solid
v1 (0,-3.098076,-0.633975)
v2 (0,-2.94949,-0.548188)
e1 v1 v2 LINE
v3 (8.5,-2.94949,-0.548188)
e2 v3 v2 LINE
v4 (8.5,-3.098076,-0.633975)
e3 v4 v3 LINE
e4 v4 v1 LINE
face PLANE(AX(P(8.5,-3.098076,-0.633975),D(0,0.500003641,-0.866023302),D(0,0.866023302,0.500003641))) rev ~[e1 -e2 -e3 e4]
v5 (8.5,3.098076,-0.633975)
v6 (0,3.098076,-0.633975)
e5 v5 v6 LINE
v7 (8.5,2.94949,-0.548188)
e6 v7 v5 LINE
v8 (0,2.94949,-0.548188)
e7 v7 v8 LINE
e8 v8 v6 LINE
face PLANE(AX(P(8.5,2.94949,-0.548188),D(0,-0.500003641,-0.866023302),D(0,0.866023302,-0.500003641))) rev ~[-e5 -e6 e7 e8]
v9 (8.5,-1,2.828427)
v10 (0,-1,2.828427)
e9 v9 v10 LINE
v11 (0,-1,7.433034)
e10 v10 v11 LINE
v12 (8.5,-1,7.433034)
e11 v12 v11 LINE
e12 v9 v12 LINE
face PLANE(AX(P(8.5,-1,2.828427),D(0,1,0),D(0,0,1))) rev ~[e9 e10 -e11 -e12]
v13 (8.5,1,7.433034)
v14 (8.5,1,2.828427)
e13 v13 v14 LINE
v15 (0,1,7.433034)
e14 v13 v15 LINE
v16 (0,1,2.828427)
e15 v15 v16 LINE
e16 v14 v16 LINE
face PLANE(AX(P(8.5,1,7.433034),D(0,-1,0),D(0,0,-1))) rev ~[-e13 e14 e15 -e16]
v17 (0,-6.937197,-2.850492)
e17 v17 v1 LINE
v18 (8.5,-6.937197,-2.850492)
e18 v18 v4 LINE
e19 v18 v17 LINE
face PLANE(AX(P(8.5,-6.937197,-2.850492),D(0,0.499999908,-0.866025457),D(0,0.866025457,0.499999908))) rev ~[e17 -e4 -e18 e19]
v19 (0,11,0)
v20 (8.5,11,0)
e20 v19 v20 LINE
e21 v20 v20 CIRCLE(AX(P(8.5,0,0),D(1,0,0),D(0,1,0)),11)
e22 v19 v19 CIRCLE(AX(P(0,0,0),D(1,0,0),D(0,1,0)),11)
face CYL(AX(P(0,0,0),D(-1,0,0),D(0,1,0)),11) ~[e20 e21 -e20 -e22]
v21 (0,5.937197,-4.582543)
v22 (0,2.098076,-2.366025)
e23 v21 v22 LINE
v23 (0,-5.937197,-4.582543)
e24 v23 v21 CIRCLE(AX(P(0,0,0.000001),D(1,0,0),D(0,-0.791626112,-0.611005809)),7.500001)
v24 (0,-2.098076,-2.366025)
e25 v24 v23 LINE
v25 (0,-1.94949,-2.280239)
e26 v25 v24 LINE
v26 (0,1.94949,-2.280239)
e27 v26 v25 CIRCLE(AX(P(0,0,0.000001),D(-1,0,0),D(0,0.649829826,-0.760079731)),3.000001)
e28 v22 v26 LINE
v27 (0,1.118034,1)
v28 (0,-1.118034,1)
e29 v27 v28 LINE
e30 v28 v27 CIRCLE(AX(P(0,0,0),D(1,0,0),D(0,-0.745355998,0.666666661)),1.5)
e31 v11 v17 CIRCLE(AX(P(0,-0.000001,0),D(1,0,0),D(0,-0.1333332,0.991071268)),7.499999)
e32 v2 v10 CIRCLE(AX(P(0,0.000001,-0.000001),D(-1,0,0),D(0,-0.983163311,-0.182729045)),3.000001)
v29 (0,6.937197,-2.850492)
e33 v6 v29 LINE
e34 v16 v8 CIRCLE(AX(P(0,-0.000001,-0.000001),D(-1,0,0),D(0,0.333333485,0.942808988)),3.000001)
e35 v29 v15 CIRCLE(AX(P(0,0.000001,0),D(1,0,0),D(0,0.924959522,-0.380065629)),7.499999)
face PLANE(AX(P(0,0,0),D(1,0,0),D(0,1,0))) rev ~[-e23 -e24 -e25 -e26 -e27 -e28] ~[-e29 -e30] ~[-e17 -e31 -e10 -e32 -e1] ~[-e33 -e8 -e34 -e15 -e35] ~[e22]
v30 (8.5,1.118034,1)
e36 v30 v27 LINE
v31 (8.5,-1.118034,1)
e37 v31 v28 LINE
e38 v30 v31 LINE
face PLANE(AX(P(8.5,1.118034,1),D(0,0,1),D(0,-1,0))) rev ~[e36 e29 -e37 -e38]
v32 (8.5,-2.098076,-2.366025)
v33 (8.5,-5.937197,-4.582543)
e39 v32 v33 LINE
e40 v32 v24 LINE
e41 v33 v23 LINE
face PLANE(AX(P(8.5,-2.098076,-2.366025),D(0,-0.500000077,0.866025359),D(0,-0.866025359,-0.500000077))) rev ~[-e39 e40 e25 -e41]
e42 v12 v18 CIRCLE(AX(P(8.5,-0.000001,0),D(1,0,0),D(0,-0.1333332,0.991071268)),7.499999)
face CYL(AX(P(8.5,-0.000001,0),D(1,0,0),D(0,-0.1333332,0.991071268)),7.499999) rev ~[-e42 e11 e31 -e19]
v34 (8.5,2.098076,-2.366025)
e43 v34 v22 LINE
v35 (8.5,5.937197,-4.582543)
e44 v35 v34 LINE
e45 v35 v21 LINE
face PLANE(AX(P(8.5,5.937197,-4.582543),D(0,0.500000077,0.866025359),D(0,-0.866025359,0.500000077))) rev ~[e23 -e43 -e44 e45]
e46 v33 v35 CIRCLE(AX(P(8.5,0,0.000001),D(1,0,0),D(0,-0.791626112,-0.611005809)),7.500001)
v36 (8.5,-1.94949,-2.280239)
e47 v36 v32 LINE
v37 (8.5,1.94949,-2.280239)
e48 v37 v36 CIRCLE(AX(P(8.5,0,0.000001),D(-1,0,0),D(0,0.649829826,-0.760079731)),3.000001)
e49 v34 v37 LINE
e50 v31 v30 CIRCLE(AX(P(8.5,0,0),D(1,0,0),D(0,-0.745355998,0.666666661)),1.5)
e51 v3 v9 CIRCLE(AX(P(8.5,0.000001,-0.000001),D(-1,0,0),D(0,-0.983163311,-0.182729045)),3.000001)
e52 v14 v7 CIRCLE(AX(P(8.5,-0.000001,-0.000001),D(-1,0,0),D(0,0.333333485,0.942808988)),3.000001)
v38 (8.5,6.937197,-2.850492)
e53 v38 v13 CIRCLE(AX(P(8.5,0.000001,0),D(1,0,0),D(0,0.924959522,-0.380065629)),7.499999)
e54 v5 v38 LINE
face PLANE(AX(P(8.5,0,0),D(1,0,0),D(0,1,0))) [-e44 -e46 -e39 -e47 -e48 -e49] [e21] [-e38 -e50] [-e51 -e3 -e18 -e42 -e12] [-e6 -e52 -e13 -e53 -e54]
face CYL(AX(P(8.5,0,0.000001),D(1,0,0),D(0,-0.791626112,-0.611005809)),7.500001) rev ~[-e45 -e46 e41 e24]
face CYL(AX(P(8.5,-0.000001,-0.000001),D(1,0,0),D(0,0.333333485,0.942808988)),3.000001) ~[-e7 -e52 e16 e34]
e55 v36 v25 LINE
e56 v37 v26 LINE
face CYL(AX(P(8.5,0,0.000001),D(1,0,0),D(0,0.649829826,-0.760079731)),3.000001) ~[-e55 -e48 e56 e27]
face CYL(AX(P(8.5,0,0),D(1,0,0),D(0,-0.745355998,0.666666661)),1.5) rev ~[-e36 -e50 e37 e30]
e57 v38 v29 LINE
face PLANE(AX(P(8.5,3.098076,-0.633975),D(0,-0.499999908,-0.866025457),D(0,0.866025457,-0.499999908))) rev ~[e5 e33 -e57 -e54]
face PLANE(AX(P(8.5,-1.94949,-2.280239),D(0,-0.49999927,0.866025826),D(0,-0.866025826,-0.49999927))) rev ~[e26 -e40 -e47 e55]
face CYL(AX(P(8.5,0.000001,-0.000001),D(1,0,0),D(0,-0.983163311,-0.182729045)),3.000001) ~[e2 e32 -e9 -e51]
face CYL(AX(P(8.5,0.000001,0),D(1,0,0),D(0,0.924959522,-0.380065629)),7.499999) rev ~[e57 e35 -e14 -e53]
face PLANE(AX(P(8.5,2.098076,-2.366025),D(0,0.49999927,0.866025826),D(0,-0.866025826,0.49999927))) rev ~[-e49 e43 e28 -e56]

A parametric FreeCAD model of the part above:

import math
import FreeCAD as App
import Part
import Sketcher
Q = App.Units.Quantity

doc = App.newDocument("Part")
body = doc.addObject("PartDesign::Body", "Body")

sketch1 = doc.addObject("Sketcher::SketchObject", "Sketch")
body.addObject(sketch1)
sketch1.AttachmentSupport = (doc.YZ_Plane, [""])
sketch1.MapMode = "FlatFace"
sketch1.addGeometry(Part.Circle(App.Vector(0, 0, 0), App.Vector(0, 0, 1), 11), False)
sketch1.addConstraint(Sketcher.Constraint("Coincident", 0, 3, -1, 1))
sketch1.addConstraint(Sketcher.Constraint("Diameter", 0, 22.0))
pad1 = doc.addObject("PartDesign::Pad", "Pad")
body.addObject(pad1)
pad1.Profile = sketch1
pad1.Length = 8.5

sketch2 = doc.addObject("Sketcher::SketchObject", "Sketch001")
body.addObject(sketch2)
sketch2.AttachmentSupport = (doc.YZ_Plane, [""])
sketch2.MapMode = "FlatFace"
sketch2.AttachmentOffset = App.Placement(App.Vector(0, 0, 8.5), App.Rotation())
sketch2.addGeometry(Part.ArcOfCircle(Part.Circle(App.Vector(0, 0, 0), App.Vector(0, 0, 1), 7.5), math.radians(98), math.radians(202)), False)
sketch2.addGeometry(Part.LineSegment(App.Vector(-6.94, -2.85, 0), App.Vector(-3.1, -0.63, 0)), False)
sketch2.addGeometry(Part.LineSegment(App.Vector(-3.1, -0.63, 0), App.Vector(-2.95, -0.55, 0)), False)
sketch2.addGeometry(Part.ArcOfCircle(Part.Circle(App.Vector(0, 0, 0), App.Vector(0, 0, 1), 3), math.radians(109), math.radians(191)), False)
sketch2.addGeometry(Part.LineSegment(App.Vector(-1, 2.83, 0), App.Vector(-1, 7.43, 0)), False)
sketch2.addGeometry(Part.ArcOfCircle(Part.Circle(App.Vector(0, 0, 0), App.Vector(0, 0, 1), 3), math.radians(-11), math.radians(71)), False)
sketch2.addGeometry(Part.LineSegment(App.Vector(2.95, -0.55, 0), App.Vector(3.1, -0.63, 0)), False)
sketch2.addGeometry(Part.LineSegment(App.Vector(3.1, -0.63, 0), App.Vector(6.94, -2.85, 0)), False)
sketch2.addGeometry(Part.ArcOfCircle(Part.Circle(App.Vector(0, 0, 0), App.Vector(0, 0, 1), 7.5), math.radians(-22), math.radians(82)), False)
sketch2.addGeometry(Part.LineSegment(App.Vector(1, 7.43, 0), App.Vector(1, 2.83, 0)), False)
sketch2.addGeometry(Part.LineSegment(App.Vector(-1.95, -2.28, 0), App.Vector(-2.1, -2.37, 0)), False)
sketch2.addGeometry(Part.LineSegment(App.Vector(-2.1, -2.37, 0), App.Vector(-5.94, -4.58, 0)), False)
sketch2.addGeometry(Part.ArcOfCircle(Part.Circle(App.Vector(0, 0, 0), App.Vector(0, 0, 1), 7.5), math.radians(-142), math.radians(-38)), False)
sketch2.addGeometry(Part.LineSegment(App.Vector(5.94, -4.58, 0), App.Vector(2.1, -2.37, 0)), False)
sketch2.addGeometry(Part.LineSegment(App.Vector(2.1, -2.37, 0), App.Vector(1.95, -2.28, 0)), False)
sketch2.addGeometry(Part.ArcOfCircle(Part.Circle(App.Vector(0, 0, 0), App.Vector(0, 0, 1), 3), math.radians(-131), math.radians(-49)), False)
sketch2.addConstraint(Sketcher.Constraint("Coincident", 0, 2, 1, 1))
sketch2.addConstraint(Sketcher.Constraint("Coincident", 1, 2, 2, 1))
sketch2.addConstraint(Sketcher.Constraint("Coincident", 2, 2, 3, 2))
sketch2.addConstraint(Sketcher.Constraint("Coincident", 3, 1, 4, 1))
sketch2.addConstraint(Sketcher.Constraint("Coincident", 4, 2, 0, 1))
sketch2.addConstraint(Sketcher.Constraint("Coincident", 5, 1, 6, 1))
sketch2.addConstraint(Sketcher.Constraint("Coincident", 6, 2, 7, 1))
sketch2.addConstraint(Sketcher.Constraint("Coincident", 7, 2, 8, 1))
sketch2.addConstraint(Sketcher.Constraint("Coincident", 8, 2, 9, 1))
sketch2.addConstraint(Sketcher.Constraint("Coincident", 9, 2, 5, 2))
sketch2.addConstraint(Sketcher.Constraint("Coincident", 10, 2, 11, 1))
sketch2.addConstraint(Sketcher.Constraint("Coincident", 11, 2, 12, 1))
sketch2.addConstraint(Sketcher.Constraint("Coincident", 12, 2, 13, 1))
sketch2.addConstraint(Sketcher.Constraint("Coincident", 13, 2, 14, 1))
sketch2.addConstraint(Sketcher.Constraint("Coincident", 14, 2, 15, 2))
sketch2.addConstraint(Sketcher.Constraint("Coincident", 15, 1, 10, 1))
sketch2.addConstraint(Sketcher.Constraint("Vertical", 4))
sketch2.addConstraint(Sketcher.Constraint("Vertical", 9))
sketch2.addConstraint(Sketcher.Constraint("Coincident", 0, 3, -1, 1))
sketch2.addConstraint(Sketcher.Constraint("Coincident", 3, 3, -1, 1))
sketch2.addConstraint(Sketcher.Constraint("Coincident", 5, 3, -1, 1))
sketch2.addConstraint(Sketcher.Constraint("Coincident", 8, 3, -1, 1))
sketch2.addConstraint(Sketcher.Constraint("Coincident", 12, 3, -1, 1))
sketch2.addConstraint(Sketcher.Constraint("Coincident", 15, 3, -1, 1))
sketch2.addConstraint(Sketcher.Constraint("Equal", 3, 5))
sketch2.addConstraint(Sketcher.Constraint("Equal", 0, 8))
sketch2.addConstraint(Sketcher.Constraint("Equal", 8, 12))
sketch2.addConstraint(Sketcher.Constraint("Equal", 5, 15))
sketch2.addConstraint(Sketcher.Constraint("Symmetric", 1, 2, 6, 2, -2))
sketch2.addConstraint(Sketcher.Constraint("Symmetric", 10, 2, 13, 2, -2))
sketch2.addConstraint(Sketcher.Constraint("Parallel", 1, 10))
sketch2.addConstraint(Sketcher.Constraint("Parallel", 10, 11))
sketch2.addConstraint(Sketcher.Constraint("Parallel", 7, 13))
sketch2.addConstraint(Sketcher.Constraint("Parallel", 13, 14))
sketch2.addConstraint(Sketcher.Constraint("Horizontal", 2, 2, 5, 1))
sketch2.addConstraint(Sketcher.Constraint("Horizontal", 0, 2, 7, 2))
sketch2.addConstraint(Sketcher.Constraint("Horizontal", 4, 2, 8, 2))
sketch2.addConstraint(Sketcher.Constraint("Equal", 6, 10))
sketch2.addConstraint(Sketcher.Constraint("Equal", 7, 11))
sketch2.addConstraint(Sketcher.Constraint("Radius", 3, 3.000001))
sketch2.addConstraint(Sketcher.Constraint("Radius", 0, 7.499999))
sketch2.addConstraint(Sketcher.Constraint("Angle", 1, Q("29.999994 deg")))
sketch2.addConstraint(Sketcher.Constraint("DistanceX", 3, 1, -1, 1, 1.0))
sketch2.addConstraint(Sketcher.Constraint("DistanceX", 1, 2, 10, 2, 1.0))
sketch2.addConstraint(Sketcher.Constraint("DistanceX", 14, 2, 5, 1, 1.0))
sketch2.addConstraint(Sketcher.Constraint("DistanceX", 6, 2, 7, 2, 3.839121))
pocket1 = doc.addObject("PartDesign::Pocket", "Pocket")
body.addObject(pocket1)
pocket1.Profile = sketch2
pocket1.Type = "ThroughAll"

sketch3 = doc.addObject("Sketcher::SketchObject", "Sketch002")
body.addObject(sketch3)
sketch3.AttachmentSupport = (doc.YZ_Plane, [""])
sketch3.MapMode = "FlatFace"
sketch3.AttachmentOffset = App.Placement(App.Vector(0, 0, 8.5), App.Rotation())
sketch3.addGeometry(Part.LineSegment(App.Vector(1.1, 1, 0), App.Vector(-1.1, 1, 0)), False)
sketch3.addGeometry(Part.ArcOfCircle(Part.Circle(App.Vector(0, 0, 0), App.Vector(0, 0, 1), 1.5), math.radians(138), math.radians(402)), False)
sketch3.addConstraint(Sketcher.Constraint("Coincident", 0, 1, 1, 2))
sketch3.addConstraint(Sketcher.Constraint("Coincident", 1, 1, 0, 2))
sketch3.addConstraint(Sketcher.Constraint("Horizontal", 0))
sketch3.addConstraint(Sketcher.Constraint("Coincident", 1, 3, -1, 1))
sketch3.addConstraint(Sketcher.Constraint("Radius", 1, 1.5))
sketch3.addConstraint(Sketcher.Constraint("DistanceY", -1, 1, 0, 1, 1.0))
pocket2 = doc.addObject("PartDesign::Pocket", "Pocket001")
body.addObject(pocket2)
pocket2.Profile = sketch3
pocket2.Type = "ThroughAll"

doc.recompute()
